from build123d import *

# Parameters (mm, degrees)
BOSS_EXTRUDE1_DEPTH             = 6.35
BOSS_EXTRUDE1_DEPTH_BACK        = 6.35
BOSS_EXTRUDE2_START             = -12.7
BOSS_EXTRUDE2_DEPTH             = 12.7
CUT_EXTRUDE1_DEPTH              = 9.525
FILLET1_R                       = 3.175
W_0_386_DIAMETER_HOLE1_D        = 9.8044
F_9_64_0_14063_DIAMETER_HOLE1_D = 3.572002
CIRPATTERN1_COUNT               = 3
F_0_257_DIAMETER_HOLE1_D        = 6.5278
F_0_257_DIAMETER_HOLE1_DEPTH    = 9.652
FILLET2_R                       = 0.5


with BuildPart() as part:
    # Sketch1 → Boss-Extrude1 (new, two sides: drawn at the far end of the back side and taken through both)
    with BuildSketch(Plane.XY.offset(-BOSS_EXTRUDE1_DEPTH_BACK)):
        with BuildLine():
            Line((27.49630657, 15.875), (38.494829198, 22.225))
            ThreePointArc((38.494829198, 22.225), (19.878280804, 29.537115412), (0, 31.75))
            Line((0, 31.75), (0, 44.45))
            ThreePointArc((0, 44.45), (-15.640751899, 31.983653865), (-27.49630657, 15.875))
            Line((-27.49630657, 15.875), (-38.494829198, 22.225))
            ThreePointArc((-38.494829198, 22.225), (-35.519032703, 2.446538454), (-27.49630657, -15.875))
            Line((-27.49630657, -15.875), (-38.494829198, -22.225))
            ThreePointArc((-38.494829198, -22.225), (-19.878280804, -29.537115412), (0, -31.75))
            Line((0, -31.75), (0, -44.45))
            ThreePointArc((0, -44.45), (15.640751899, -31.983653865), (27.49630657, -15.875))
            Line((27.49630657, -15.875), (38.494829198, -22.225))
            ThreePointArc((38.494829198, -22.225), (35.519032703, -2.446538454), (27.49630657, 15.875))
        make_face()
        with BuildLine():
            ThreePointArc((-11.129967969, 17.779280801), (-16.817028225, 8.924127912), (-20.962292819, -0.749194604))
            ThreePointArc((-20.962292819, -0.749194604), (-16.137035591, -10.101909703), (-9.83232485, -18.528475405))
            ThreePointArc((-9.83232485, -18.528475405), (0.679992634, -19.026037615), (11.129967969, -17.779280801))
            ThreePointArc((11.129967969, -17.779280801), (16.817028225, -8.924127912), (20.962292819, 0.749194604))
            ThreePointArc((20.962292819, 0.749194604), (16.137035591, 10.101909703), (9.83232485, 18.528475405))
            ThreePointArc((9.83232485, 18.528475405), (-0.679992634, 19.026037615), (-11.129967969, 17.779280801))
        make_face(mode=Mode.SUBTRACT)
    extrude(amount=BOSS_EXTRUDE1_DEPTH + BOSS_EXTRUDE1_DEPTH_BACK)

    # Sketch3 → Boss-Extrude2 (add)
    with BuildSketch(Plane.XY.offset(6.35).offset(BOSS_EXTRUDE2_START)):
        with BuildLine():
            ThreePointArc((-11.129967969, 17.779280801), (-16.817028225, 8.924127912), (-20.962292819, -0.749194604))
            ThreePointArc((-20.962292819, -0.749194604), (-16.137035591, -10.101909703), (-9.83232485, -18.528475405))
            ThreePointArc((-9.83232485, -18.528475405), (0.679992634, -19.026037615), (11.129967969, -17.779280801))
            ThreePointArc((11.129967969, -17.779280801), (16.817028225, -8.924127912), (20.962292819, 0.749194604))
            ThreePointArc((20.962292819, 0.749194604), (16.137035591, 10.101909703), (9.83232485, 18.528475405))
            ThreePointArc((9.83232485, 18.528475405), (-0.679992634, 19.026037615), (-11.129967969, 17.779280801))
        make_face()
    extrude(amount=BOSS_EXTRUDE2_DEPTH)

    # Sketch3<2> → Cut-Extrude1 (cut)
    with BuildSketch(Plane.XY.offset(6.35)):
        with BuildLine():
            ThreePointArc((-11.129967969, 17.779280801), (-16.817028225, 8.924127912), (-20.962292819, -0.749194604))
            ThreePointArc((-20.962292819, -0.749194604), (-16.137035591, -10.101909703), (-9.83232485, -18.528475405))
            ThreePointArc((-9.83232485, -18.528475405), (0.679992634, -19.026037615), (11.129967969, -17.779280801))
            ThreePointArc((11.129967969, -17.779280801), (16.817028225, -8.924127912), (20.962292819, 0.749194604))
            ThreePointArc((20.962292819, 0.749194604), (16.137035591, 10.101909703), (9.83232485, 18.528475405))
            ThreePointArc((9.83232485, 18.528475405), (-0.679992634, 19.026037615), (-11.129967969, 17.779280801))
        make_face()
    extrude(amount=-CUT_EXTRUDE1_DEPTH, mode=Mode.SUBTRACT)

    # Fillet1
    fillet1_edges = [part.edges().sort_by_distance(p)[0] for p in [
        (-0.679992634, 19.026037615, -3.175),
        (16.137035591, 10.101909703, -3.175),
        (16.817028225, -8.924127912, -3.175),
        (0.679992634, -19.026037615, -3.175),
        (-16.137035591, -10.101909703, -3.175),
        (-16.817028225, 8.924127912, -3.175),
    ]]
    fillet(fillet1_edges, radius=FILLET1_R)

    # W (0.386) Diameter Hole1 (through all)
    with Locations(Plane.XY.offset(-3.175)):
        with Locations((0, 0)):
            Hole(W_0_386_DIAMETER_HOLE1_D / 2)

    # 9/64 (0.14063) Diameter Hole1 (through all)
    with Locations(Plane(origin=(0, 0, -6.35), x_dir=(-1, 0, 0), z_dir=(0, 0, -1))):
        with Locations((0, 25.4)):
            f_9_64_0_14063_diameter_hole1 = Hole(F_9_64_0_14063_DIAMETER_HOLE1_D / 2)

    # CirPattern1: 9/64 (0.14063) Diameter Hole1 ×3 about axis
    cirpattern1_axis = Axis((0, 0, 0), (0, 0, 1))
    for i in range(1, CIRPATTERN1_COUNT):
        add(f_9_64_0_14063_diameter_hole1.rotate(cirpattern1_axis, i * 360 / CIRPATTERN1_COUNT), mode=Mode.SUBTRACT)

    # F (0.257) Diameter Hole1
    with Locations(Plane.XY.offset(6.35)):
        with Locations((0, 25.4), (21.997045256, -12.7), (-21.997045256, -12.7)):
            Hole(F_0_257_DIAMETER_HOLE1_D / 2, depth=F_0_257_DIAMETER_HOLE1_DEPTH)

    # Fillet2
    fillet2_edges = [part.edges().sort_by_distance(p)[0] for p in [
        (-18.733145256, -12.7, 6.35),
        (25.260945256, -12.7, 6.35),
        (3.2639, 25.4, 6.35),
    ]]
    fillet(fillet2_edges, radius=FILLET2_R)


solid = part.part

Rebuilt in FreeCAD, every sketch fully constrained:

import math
import FreeCAD as App
import Part
import Sketcher
Q = App.Units.Quantity


def edges_at(feature, points):
    """Names of the edges that pass closest to the given points."""
    edges = feature.Shape.Edges
    near = lambda p: min(range(len(edges)), key=lambda i: edges[i].distToShape(Part.Vertex(*p))[0])
    return sorted({f"Edge{near(p) + 1}" for p in points})

doc = App.newDocument("Part")
body = doc.addObject("PartDesign::Body", "Body")

# Sketch on XY plane
sketch1 = doc.addObject("Sketcher::SketchObject", "Sketch")
body.addObject(sketch1)
sketch1.AttachmentSupport = (doc.XY_Plane, [""])
sketch1.MapMode = "FlatFace"
sketch1.addGeometry([
    Part.LineSegment(App.Vector(27.496307, 15.875, 0), App.Vector(38.494829, 22.225, 0)),  # 0
    Part.ArcOfCircle(Part.Circle(App.Vector(1.586448, -44.388447, 0), App.Vector(0, 0, 1), 76.154973), math.radians(61.010565), math.radians(91.193663)),  # 1
    Part.LineSegment(App.Vector(0, 31.75, 0), App.Vector(0, 44.45, 0)),  # 2
    Part.ArcOfCircle(Part.Circle(App.Vector(39.234747, -20.820319, 0), App.Vector(0, 0, 1), 76.154973), math.radians(121.010565), math.radians(151.193663)),  # 3
    Part.LineSegment(App.Vector(-27.496307, 15.875, 0), App.Vector(-38.494829, 22.225, 0)),  # 4
    Part.ArcOfCircle(Part.Circle(App.Vector(37.648299, 23.568128, 0), App.Vector(0, 0, 1), 76.154973), math.radians(-178.989435), math.radians(-148.806337)),  # 5
    Part.LineSegment(App.Vector(-27.496307, -15.875, 0), App.Vector(-38.494829, -22.225, 0)),  # 6
    Part.ArcOfCircle(Part.Circle(App.Vector(-1.586448, 44.388447, 0), App.Vector(0, 0, 1), 76.154973), math.radians(-118.989435), math.radians(-88.806337)),  # 7
    Part.LineSegment(App.Vector(0, -31.75, 0), App.Vector(0, -44.45, 0)),  # 8
    Part.ArcOfCircle(Part.Circle(App.Vector(-39.234747, 20.820319, 0), App.Vector(0, 0, 1), 76.154973), math.radians(-58.989435), math.radians(-28.806337)),  # 9
    Part.LineSegment(App.Vector(27.496307, -15.875, 0), App.Vector(38.494829, -22.225, 0)),  # 10
    Part.ArcOfCircle(Part.Circle(App.Vector(-37.648299, -23.568128, 0), App.Vector(0, 0, 1), 76.154973), math.radians(1.010565), math.radians(31.193663)),  # 11
    Part.ArcOfCircle(Part.Circle(App.Vector(39.234747, -20.820319, 0), App.Vector(0, 0, 1), 63.454973), math.radians(142.533385), math.radians(161.560387)),  # 12
    Part.ArcOfCircle(Part.Circle(App.Vector(1.586448, -44.388447, 0), App.Vector(0, 0, 1), 63.454973), math.radians(82.533385), math.radians(101.560387)),  # 13
    Part.ArcOfCircle(Part.Circle(App.Vector(-37.648299, -23.568128, 0), App.Vector(0, 0, 1), 63.454973), math.radians(22.533385), math.radians(41.560387)),  # 14
    Part.ArcOfCircle(Part.Circle(App.Vector(-39.234747, 20.820319, 0), App.Vector(0, 0, 1), 63.454973), math.radians(-37.466615), math.radians(-18.439613)),  # 15
    Part.ArcOfCircle(Part.Circle(App.Vector(-1.586448, 44.388447, 0), App.Vector(0, 0, 1), 63.454973), math.radians(-97.466615), math.radians(-78.439613)),  # 16
    Part.ArcOfCircle(Part.Circle(App.Vector(37.648299, 23.568128, 0), App.Vector(0, 0, 1), 63.454973), math.radians(-157.466615), math.radians(-138.439613)),  # 17
], False)
sketch1.addConstraint([
    Sketcher.Constraint("Coincident", 0, 2, 1, 1),
    Sketcher.Constraint("Coincident", 1, 2, 2, 1),
    Sketcher.Constraint("Coincident", 2, 2, 3, 1),
    Sketcher.Constraint("Coincident", 3, 2, 4, 1),
    Sketcher.Constraint("Coincident", 4, 2, 5, 1),
    Sketcher.Constraint("Coincident", 5, 2, 6, 1),
    Sketcher.Constraint("Coincident", 6, 2, 7, 1),
    Sketcher.Constraint("Coincident", 7, 2, 8, 1),
    Sketcher.Constraint("Coincident", 8, 2, 9, 1),
    Sketcher.Constraint("Coincident", 9, 2, 10, 1),
    Sketcher.Constraint("Coincident", 10, 2, 11, 1),
    Sketcher.Constraint("Coincident", 11, 2, 0, 1),
    Sketcher.Constraint("Coincident", 12, 1, 13, 2),
    Sketcher.Constraint("Coincident", 13, 1, 14, 2),
    Sketcher.Constraint("Coincident", 14, 1, 15, 2),
    Sketcher.Constraint("Coincident", 15, 1, 16, 2),
    Sketcher.Constraint("Coincident", 16, 1, 17, 2),
    Sketcher.Constraint("Coincident", 17, 1, 12, 2),
    Sketcher.Constraint("Vertical", 2),
    Sketcher.Constraint("Vertical", 8),
    Sketcher.Constraint("Coincident", 12, 3, 3, 3),
    Sketcher.Constraint("Coincident", 13, 3, 1, 3),
    Sketcher.Constraint("Coincident", 14, 3, 11, 3),
    Sketcher.Constraint("Coincident", 15, 3, 9, 3),
    Sketcher.Constraint("Coincident", 16, 3, 7, 3),
    Sketcher.Constraint("Coincident", 17, 3, 5, 3),
    Sketcher.Constraint("Equal", 1, 3),
    Sketcher.Constraint("Equal", 3, 5),
    Sketcher.Constraint("Equal", 5, 7),
    Sketcher.Constraint("Equal", 7, 9),
    Sketcher.Constraint("Equal", 9, 11),
    Sketcher.Constraint("Equal", 12, 13),
    Sketcher.Constraint("Equal", 13, 14),
    Sketcher.Constraint("Equal", 14, 15),
    Sketcher.Constraint("Equal", 15, 16),
    Sketcher.Constraint("Equal", 16, 17),
    Sketcher.Constraint("Symmetric", 1, 3, 7, 3, -1, 1),
    Sketcher.Constraint("Symmetric", 3, 3, 9, 3, -1, 1),
    Sketcher.Constraint("Symmetric", 5, 3, 11, 3, -1, 1),
    Sketcher.Constraint("Symmetric", 0, 2, 4, 2, -2),
    Sketcher.Constraint("Symmetric", 5, 2, 9, 2, -2),
    Sketcher.Constraint("Symmetric", 6, 2, 10, 2, -2),
    Sketcher.Constraint("Symmetric", 1, 2, 7, 2, -1),
    Sketcher.Constraint("Parallel", 0, 6),
    Sketcher.Constraint("Parallel", 4, 10),
    Sketcher.Constraint("DistanceY", 2, 1, 2, 2, Q("0.5 in")),
    Sketcher.Constraint("Angle", 0, Q("30 deg")),
    Sketcher.Constraint("Distance", 0, Q("0.5 in")),
    Sketcher.Constraint("DistanceY", 6, 2, 3, 2, Q("1.5 in")),
    Sketcher.Constraint("DistanceY", -1, 1, 1, 2, Q("1.25 in")),
    Sketcher.Constraint("Radius", 1, Q("76.154973 mm")),
    Sketcher.Constraint("Radius", 12, Q("63.454973 mm")),
    Sketcher.Constraint("DistanceX", -1, 1, 5, 3, Q("37.648299 mm")),
])
pad1 = doc.addObject("PartDesign::Pad", "Pad")
body.addObject(pad1)
pad1.Profile = sketch1
pad1.Type = "TwoLengths"
pad1.Length = Q("0.25 in")
pad1.Length2 = Q("0.25 in")

# Sketch on XY plane
sketch2 = doc.addObject("Sketcher::SketchObject", "Sketch001")
body.addObject(sketch2)
sketch2.AttachmentSupport = (doc.XY_Plane, [""])
sketch2.MapMode = "FlatFace"
sketch2.AttachmentOffset = App.Placement(App.Vector(0, 0, -0.25 * 25.4), App.Rotation())
sketch2.addGeometry([
    Part.ArcOfCircle(Part.Circle(App.Vector(39.234747, -20.820319, 0), App.Vector(0, 0, 1), 63.454973), math.radians(142.533385), math.radians(161.560387)),  # 0
    Part.ArcOfCircle(Part.Circle(App.Vector(37.648299, 23.568128, 0), App.Vector(0, 0, 1), 63.454973), math.radians(-157.466615), math.radians(-138.439613)),  # 1
    Part.ArcOfCircle(Part.Circle(App.Vector(-1.586448, 44.388447, 0), App.Vector(0, 0, 1), 63.454973), math.radians(-97.466615), math.radians(-78.439613)),  # 2
    Part.ArcOfCircle(Part.Circle(App.Vector(-39.234747, 20.820319, 0), App.Vector(0, 0, 1), 63.454973), math.radians(-37.466615), math.radians(-18.439613)),  # 3
    Part.ArcOfCircle(Part.Circle(App.Vector(-37.648299, -23.568128, 0), App.Vector(0, 0, 1), 63.454973), math.radians(22.533385), math.radians(41.560387)),  # 4
    Part.ArcOfCircle(Part.Circle(App.Vector(1.586448, -44.388447, 0), App.Vector(0, 0, 1), 63.454973), math.radians(82.533385), math.radians(101.560387)),  # 5
], False)
sketch2.addConstraint([
    Sketcher.Constraint("Coincident", 0, 2, 1, 1),
    Sketcher.Constraint("Coincident", 1, 2, 2, 1),
    Sketcher.Constraint("Coincident", 2, 2, 3, 1),
    Sketcher.Constraint("Coincident", 3, 2, 4, 1),
    Sketcher.Constraint("Coincident", 4, 2, 5, 1),
    Sketcher.Constraint("Coincident", 5, 2, 0, 1),
    Sketcher.Constraint("Equal", 0, 1),
    Sketcher.Constraint("Equal", 1, 2),
    Sketcher.Constraint("Equal", 2, 3),
    Sketcher.Constraint("Equal", 3, 4),
    Sketcher.Constraint("Equal", 4, 5),
    Sketcher.Constraint("Symmetric", 0, 3, 3, 3, -1, 1),
    Sketcher.Constraint("Symmetric", 1, 3, 4, 3, -1, 1),
    Sketcher.Constraint("Symmetric", 2, 3, 5, 3, -1, 1),
    Sketcher.Constraint("Radius", 0, Q("63.454973 mm")),
    Sketcher.Constraint("DistanceX", -1, 1, 1, 3, Q("37.648299 mm")),
    Sketcher.Constraint("DistanceX", 3, 3, 2, 3, Q("37.648299 mm")),
    Sketcher.Constraint("DistanceY", 0, 3, -1, 1, Q("20.820319 mm")),
    Sketcher.Constraint("DistanceY", 2, 2, -1, 1, Q("17.779281 mm")),
    Sketcher.Constraint("DistanceY", 1, 3, 2, 3, Q("20.820319 mm")),
    Sketcher.Constraint("DistanceX", 4, 3, 2, 3, Q("36.061851 mm")),
])
pad2 = doc.addObject("PartDesign::Pad", "Pad001")
body.addObject(pad2)
pad2.Profile = sketch2
pad2.Length = Q("0.5 in")

# Sketch on XY plane
sketch3 = doc.addObject("Sketcher::SketchObject", "Sketch002")
body.addObject(sketch3)
sketch3.AttachmentSupport = (doc.XY_Plane, [""])
sketch3.MapMode = "FlatFace"
sketch3.AttachmentOffset = App.Placement(App.Vector(0, 0, 0.25 * 25.4), App.Rotation())
sketch3.addGeometry([
    Part.ArcOfCircle(Part.Circle(App.Vector(39.234747, -20.820319, 0), App.Vector(0, 0, 1), 63.454973), math.radians(142.533385), math.radians(161.560387)),  # 0
    Part.ArcOfCircle(Part.Circle(App.Vector(37.648299, 23.568128, 0), App.Vector(0, 0, 1), 63.454973), math.radians(-157.466615), math.radians(-138.439613)),  # 1
    Part.ArcOfCircle(Part.Circle(App.Vector(-1.586448, 44.388447, 0), App.Vector(0, 0, 1), 63.454973), math.radians(-97.466615), math.radians(-78.439613)),  # 2
    Part.ArcOfCircle(Part.Circle(App.Vector(-39.234747, 20.820319, 0), App.Vector(0, 0, 1), 63.454973), math.radians(-37.466615), math.radians(-18.439613)),  # 3
    Part.ArcOfCircle(Part.Circle(App.Vector(-37.648299, -23.568128, 0), App.Vector(0, 0, 1), 63.454973), math.radians(22.533385), math.radians(41.560387)),  # 4
    Part.ArcOfCircle(Part.Circle(App.Vector(1.586448, -44.388447, 0), App.Vector(0, 0, 1), 63.454973), math.radians(82.533385), math.radians(101.560387)),  # 5
], False)
sketch3.addConstraint([
    Sketcher.Constraint("Coincident", 0, 2, 1, 1),
    Sketcher.Constraint("Coincident", 1, 2, 2, 1),
    Sketcher.Constraint("Coincident", 2, 2, 3, 1),
    Sketcher.Constraint("Coincident", 3, 2, 4, 1),
    Sketcher.Constraint("Coincident", 4, 2, 5, 1),
    Sketcher.Constraint("Coincident", 5, 2, 0, 1),
    Sketcher.Constraint("Equal", 0, 1),
    Sketcher.Constraint("Equal", 1, 2),
    Sketcher.Constraint("Equal", 2, 3),
    Sketcher.Constraint("Equal", 3, 4),
    Sketcher.Constraint("Equal", 4, 5),
    Sketcher.Constraint("Symmetric", 0, 3, 3, 3, -1, 1),
    Sketcher.Constraint("Symmetric", 1, 3, 4, 3, -1, 1),
    Sketcher.Constraint("Symmetric", 2, 3, 5, 3, -1, 1),
    Sketcher.Constraint("Radius", 0, Q("63.454973 mm")),
    Sketcher.Constraint("DistanceX", -1, 1, 1, 3, Q("37.648299 mm")),
    Sketcher.Constraint("DistanceX", 3, 3, 2, 3, Q("37.648299 mm")),
    Sketcher.Constraint("DistanceY", 0, 3, -1, 1, Q("20.820319 mm")),
    Sketcher.Constraint("DistanceY", 2, 2, -1, 1, Q("17.779281 mm")),
    Sketcher.Constraint("DistanceY", 1, 3, 2, 3, Q("20.820319 mm")),
    Sketcher.Constraint("DistanceX", 4, 3, 2, 3, Q("36.061851 mm")),
])
pocket1 = doc.addObject("PartDesign::Pocket", "Pocket")
body.addObject(pocket1)
pocket1.Profile = sketch3
pocket1.Length = Q("0.375 in")
doc.recompute()

fillet = doc.addObject("PartDesign::Fillet", "Fillet")
body.addObject(fillet)
fillet.Base = (pocket1, edges_at(pocket1, [
    (-0.68, 19.026, -3.175),
    (16.137, 10.102, -3.175),
    (16.817, -8.924, -3.175),
    (0.68, -19.026, -3.175),
    (-16.137, -10.102, -3.175),
    (-16.817, 8.924, -3.175),
]))
fillet.Radius = Q("0.125 in")

# Sketch on XY plane
sketch4 = doc.addObject("Sketcher::SketchObject", "Sketch003")
body.addObject(sketch4)
sketch4.AttachmentSupport = (doc.XY_Plane, [""])
sketch4.MapMode = "FlatFace"
sketch4.AttachmentOffset = App.Placement(App.Vector(0, 0, -0.125 * 25.4), App.Rotation())
sketch4.addGeometry(Part.Circle(App.Vector(0, 0, 0), App.Vector(0, 0, 1), 4.9022), False)
sketch4.addConstraint([
    Sketcher.Constraint("Coincident", 0, 3, -1, 1),
    Sketcher.Constraint("Diameter", 0, Q("0.386 in")),
])
doc.recompute()
hole = doc.addObject("PartDesign::Hole", "Hole")
body.addObject(hole)
hole.Profile = sketch4
hole.ThreadType = "None"
hole.Diameter = Q("0.386 in")
hole.DepthType = "ThroughAll"

# Sketch on XY plane
sketch5 = doc.addObject("Sketcher::SketchObject", "Sketch004")
body.addObject(sketch5)
sketch5.AttachmentSupport = (doc.XY_Plane, [""])
sketch5.MapMode = "FlatFace"
sketch5.AttachmentOffset = App.Placement(App.Vector(0, 0, -0.25 * 25.4), App.Rotation())
sketch5.addGeometry(Part.Circle(App.Vector(0, 25.4, 0), App.Vector(0, 0, 1), 1.786001), False)
sketch5.addConstraint([
    Sketcher.Constraint("PointOnObject", 0, 3, -2),
    Sketcher.Constraint("DistanceY", -1, 1, 0, 3, Q("1 in")),
    Sketcher.Constraint("Diameter", 0, Q("3.572002 mm")),
])
doc.recompute()
hole2 = doc.addObject("PartDesign::Hole", "Hole001")
body.addObject(hole2)
hole2.Profile = sketch5
hole2.ThreadType = "None"
hole2.Diameter = 3.572002
hole2.DepthType = "ThroughAll"
hole2.Reversed = True
doc.recompute()

polarpattern = doc.addObject("PartDesign::PolarPattern", "PolarPattern")
body.addObject(polarpattern)
polarpattern.Originals = [hole2]
polarpattern.Axis = (doc.Z_Axis, [""])
polarpattern.Angle = 360
polarpattern.Occurrences = 3
body.Tip = polarpattern

# Sketch on XY plane
sketch6 = doc.addObject("Sketcher::SketchObject", "Sketch005")
body.addObject(sketch6)
sketch6.AttachmentSupport = (doc.XY_Plane, [""])
sketch6.MapMode = "FlatFace"
sketch6.AttachmentOffset = App.Placement(App.Vector(0, 0, 0.25 * 25.4), App.Rotation())
sketch6.addGeometry([
    Part.Circle(App.Vector(0, 25.4, 0), App.Vector(0, 0, 1), 3.2639),
    Part.Circle(App.Vector(21.997045, -12.7, 0), App.Vector(0, 0, 1), 3.2639),
    Part.Circle(App.Vector(-21.997045, -12.7, 0), App.Vector(0, 0, 1), 3.2639),
], False)
sketch6.addConstraint([
    Sketcher.Constraint("Equal", 0, 1),
    Sketcher.Constraint("Equal", 1, 2),
    Sketcher.Constraint("Symmetric", 1, 3, 2, 3, -2),
    Sketcher.Constraint("PointOnObject", 0, 3, -2),
    Sketcher.Constraint("Diameter", 0, Q("0.257 in")),
    Sketcher.Constraint("DistanceY", -1, 1, 0, 3, Q("1 in")),
    Sketcher.Constraint("DistanceY", 1, 3, -1, 1, Q("0.5 in")),
    Sketcher.Constraint("DistanceX", 2, 3, 1, 3, Q("43.994091 mm")),
])
doc.recompute()
hole3 = doc.addObject("PartDesign::Hole", "Hole002")
body.addObject(hole3)
hole3.Profile = sketch6
hole3.ThreadType = "None"
hole3.Diameter = Q("0.257 in")
hole3.DepthType = "Dimension"
hole3.Depth = Q("0.38 in")
hole3.DrillPoint = "Flat"
doc.recompute()

fillet2 = doc.addObject("PartDesign::Fillet", "Fillet001")
body.addObject(fillet2)
fillet2.Base = (hole3, edges_at(hole3, [(-18.733, -12.7, 6.35), (25.261, -12.7, 6.35), (3.264, 25.4, 6.35)]))
fillet2.Radius = 0.5

doc.recompute()
